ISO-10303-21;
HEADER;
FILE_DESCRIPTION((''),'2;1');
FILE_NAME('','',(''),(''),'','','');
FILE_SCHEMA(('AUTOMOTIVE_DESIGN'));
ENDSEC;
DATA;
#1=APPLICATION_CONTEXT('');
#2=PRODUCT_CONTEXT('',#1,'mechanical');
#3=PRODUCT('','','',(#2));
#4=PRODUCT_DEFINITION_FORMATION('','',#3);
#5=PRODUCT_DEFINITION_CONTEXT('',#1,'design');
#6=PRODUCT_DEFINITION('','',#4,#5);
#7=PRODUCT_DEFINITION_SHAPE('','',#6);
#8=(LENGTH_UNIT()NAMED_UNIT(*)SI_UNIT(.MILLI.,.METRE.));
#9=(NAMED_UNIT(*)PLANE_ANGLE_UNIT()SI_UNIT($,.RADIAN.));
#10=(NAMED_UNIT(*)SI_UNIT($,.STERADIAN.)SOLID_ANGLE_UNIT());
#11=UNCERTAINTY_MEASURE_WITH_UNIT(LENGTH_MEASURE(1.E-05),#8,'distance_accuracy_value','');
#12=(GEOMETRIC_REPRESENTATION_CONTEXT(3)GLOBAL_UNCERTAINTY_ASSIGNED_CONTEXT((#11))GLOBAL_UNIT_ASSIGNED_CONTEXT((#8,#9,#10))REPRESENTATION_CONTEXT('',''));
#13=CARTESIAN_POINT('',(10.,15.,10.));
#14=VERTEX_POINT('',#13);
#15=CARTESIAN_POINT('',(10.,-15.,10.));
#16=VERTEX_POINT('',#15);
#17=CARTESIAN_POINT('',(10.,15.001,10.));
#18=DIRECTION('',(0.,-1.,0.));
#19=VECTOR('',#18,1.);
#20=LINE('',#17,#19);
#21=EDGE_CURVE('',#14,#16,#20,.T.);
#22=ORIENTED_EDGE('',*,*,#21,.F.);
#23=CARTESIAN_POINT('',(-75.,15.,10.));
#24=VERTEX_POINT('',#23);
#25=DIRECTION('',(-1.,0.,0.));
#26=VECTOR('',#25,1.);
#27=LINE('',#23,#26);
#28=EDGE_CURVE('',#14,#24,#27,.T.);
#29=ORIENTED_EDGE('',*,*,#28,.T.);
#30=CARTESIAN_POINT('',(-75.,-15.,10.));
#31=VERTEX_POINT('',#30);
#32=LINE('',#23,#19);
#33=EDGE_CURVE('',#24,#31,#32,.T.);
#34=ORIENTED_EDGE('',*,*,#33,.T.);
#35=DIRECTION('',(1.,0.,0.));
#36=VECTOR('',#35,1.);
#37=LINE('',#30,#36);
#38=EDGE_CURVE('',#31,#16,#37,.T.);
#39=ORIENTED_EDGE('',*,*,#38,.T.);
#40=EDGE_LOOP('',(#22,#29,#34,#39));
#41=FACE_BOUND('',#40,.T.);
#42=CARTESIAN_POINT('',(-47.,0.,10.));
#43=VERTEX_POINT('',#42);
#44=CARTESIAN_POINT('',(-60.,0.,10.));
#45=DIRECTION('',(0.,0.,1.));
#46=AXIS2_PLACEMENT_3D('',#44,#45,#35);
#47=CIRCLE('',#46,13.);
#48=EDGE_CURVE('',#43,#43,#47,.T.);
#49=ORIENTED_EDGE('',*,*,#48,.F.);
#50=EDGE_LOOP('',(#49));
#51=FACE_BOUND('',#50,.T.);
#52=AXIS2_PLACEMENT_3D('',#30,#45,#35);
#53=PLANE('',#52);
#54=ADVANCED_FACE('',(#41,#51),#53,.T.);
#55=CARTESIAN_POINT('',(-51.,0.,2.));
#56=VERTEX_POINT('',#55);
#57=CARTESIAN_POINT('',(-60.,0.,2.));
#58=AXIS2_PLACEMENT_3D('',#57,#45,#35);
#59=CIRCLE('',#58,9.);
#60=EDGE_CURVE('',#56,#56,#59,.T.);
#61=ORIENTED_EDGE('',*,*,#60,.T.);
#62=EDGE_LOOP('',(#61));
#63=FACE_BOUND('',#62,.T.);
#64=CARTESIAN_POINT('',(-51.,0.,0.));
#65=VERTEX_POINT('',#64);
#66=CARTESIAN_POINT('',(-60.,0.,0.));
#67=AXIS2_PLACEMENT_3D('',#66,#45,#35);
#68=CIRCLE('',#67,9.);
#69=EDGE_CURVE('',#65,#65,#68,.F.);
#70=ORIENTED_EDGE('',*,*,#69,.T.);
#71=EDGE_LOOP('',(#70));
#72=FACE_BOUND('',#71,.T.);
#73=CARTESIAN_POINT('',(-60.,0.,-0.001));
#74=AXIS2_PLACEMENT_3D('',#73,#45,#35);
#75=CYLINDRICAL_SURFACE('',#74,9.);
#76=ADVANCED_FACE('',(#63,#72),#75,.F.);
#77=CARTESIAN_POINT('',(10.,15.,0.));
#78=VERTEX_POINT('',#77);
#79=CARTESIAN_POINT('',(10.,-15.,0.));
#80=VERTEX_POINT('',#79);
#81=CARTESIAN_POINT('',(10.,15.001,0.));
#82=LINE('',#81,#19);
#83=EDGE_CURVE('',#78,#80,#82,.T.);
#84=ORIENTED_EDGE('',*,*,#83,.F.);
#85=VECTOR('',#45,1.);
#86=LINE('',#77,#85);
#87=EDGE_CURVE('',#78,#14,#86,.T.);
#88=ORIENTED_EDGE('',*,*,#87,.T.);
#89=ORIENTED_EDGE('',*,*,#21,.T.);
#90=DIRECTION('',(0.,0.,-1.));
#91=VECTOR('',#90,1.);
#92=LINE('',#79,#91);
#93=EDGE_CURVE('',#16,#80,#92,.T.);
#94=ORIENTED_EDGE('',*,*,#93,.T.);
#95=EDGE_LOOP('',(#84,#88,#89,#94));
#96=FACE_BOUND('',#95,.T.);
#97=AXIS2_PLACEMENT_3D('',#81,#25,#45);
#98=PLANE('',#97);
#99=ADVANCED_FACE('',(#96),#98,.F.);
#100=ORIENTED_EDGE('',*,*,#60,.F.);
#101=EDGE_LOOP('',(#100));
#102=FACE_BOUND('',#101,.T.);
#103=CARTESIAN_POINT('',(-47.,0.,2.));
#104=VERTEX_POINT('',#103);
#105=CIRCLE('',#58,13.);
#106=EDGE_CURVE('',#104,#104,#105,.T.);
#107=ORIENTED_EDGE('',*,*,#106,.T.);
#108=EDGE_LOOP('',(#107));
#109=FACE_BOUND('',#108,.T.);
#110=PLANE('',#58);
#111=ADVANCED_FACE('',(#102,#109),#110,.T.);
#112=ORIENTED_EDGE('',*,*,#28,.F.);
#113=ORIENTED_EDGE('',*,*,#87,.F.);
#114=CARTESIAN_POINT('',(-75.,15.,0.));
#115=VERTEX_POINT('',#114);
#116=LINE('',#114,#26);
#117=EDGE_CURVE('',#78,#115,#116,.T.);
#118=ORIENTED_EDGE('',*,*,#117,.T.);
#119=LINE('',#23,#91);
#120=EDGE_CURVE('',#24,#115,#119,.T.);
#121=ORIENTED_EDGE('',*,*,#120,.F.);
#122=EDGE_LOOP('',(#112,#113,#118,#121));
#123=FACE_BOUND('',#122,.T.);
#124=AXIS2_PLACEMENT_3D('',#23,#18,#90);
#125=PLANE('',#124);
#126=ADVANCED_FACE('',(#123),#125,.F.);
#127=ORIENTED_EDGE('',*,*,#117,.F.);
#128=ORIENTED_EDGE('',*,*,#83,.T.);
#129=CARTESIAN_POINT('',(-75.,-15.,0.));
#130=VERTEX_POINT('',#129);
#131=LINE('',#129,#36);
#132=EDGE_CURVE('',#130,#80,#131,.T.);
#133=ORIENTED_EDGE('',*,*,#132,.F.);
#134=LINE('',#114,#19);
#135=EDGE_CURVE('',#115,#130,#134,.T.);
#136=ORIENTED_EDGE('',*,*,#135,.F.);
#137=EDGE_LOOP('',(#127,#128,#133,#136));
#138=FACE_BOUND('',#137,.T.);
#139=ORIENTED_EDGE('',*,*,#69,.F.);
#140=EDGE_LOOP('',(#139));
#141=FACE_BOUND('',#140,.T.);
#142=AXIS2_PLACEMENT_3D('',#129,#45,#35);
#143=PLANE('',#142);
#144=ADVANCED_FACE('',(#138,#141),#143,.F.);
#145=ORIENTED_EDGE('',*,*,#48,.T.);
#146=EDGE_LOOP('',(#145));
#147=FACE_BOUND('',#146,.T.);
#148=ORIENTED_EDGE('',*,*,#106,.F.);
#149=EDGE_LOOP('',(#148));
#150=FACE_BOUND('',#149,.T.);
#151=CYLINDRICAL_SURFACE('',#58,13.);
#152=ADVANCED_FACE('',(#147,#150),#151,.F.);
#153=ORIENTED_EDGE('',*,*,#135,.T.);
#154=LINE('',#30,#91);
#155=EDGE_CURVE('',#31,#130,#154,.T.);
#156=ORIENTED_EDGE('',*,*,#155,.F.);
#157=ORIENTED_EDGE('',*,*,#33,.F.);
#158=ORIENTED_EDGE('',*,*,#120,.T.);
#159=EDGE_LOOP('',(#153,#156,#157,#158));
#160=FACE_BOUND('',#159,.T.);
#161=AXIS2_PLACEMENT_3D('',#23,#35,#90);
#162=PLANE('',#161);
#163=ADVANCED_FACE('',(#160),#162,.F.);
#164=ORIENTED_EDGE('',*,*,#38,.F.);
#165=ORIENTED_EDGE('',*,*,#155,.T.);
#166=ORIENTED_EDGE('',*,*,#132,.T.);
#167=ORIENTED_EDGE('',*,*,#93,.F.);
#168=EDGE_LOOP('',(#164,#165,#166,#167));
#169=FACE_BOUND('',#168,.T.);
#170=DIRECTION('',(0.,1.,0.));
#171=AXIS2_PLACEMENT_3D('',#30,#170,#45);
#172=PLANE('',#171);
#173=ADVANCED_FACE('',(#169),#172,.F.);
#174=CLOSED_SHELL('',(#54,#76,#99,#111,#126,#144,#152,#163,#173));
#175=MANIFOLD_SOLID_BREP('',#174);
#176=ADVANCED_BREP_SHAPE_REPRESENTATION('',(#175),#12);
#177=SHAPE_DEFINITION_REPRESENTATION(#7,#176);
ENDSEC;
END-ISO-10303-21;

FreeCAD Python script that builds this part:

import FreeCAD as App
import Part
import Sketcher


def add_polygon(sketch, points):
    """Adds a closed chain of lines whose ends are joined by coincident constraints."""
    first, n = sketch.GeometryCount, len(points)
    for a, b in zip(points, points[1:] + points[:1]):
        sketch.addGeometry(Part.LineSegment(App.Vector(*a, 0), App.Vector(*b, 0)), False)
    for i in range(n):
        sketch.addConstraint(Sketcher.Constraint("Coincident", first + i, 2, first + (i + 1) % n, 1))

doc = App.newDocument("Part")
body = doc.addObject("PartDesign::Body", "Body")

# Sketch on XY plane
sketch1 = body.newObject("Sketcher::SketchObject", "Sketch")
sketch1.AttachmentSupport = (doc.getObject("XY_Plane"), [""])
sketch1.MapMode = "FlatFace"
add_polygon(sketch1, [(-75, 15), (-75, -15), (75, -15), (75, 15)])  # lines 0-3
sketch1.addConstraint([
    Sketcher.Constraint("Vertical", 0),
    Sketcher.Constraint("Horizontal", 1),
    Sketcher.Constraint("Vertical", 2),
    Sketcher.Constraint("Horizontal", 3),
    Sketcher.Constraint("Symmetric", 0, 2, 2, 2, -1, 1),
    Sketcher.Constraint("DistanceX", 1, 1, 1, 2, 150.0),
    Sketcher.Constraint("DistanceY", 0, 2, 0, 1, 30.0),
])
pad1 = body.newObject("PartDesign::Pad", "Pad")
pad1.Profile = sketch1
pad1.Length = 10

# Sketch on XY plane
sketch2 = body.newObject("Sketcher::SketchObject", "Sketch001")
sketch2.AttachmentSupport = (doc.getObject("XY_Plane"), [""])
sketch2.MapMode = "FlatFace"
sketch2.AttachmentOffset = App.Placement(App.Vector(0, 0, 10), App.Rotation())
sketch2.addGeometry(Part.Circle(App.Vector(-60, 0, 0), App.Vector(0, 0, 1), 13), False)
sketch2.addConstraint([
    Sketcher.Constraint("PointOnObject", 0, 3, -1),
    Sketcher.Constraint("Diameter", 0, 26.0),
    Sketcher.Constraint("DistanceX", 0, 3, -1, 1, 60.0),
])
pocket1 = body.newObject("PartDesign::Pocket", "Pocket")
pocket1.Profile = sketch2
pocket1.Length = 8

# Sketch on XY plane
sketch3 = body.newObject("Sketcher::SketchObject", "Sketch002")
sketch3.AttachmentSupport = (doc.getObject("XY_Plane"), [""])
sketch3.MapMode = "FlatFace"
sketch3.AttachmentOffset = App.Placement(App.Vector(0, 0, 2), App.Rotation())
sketch3.addGeometry(Part.Circle(App.Vector(-60, 0, 0), App.Vector(0, 0, 1), 9), False)
sketch3.addConstraint([
    Sketcher.Constraint("PointOnObject", 0, 3, -1),
    Sketcher.Constraint("Diameter", 0, 18.0),
    Sketcher.Constraint("DistanceX", 0, 3, -1, 1, 60.0),
])
pocket2 = body.newObject("PartDesign::Pocket", "Pocket001")
pocket2.Profile = sketch3
pocket2.Type = "UpToFirst"

# Sketch on XZ plane
sketch4 = body.newObject("Sketcher::SketchObject", "Sketch003")
sketch4.AttachmentSupport = (doc.getObject("XZ_Plane"), [""])
sketch4.MapMode = "FlatFace"
sketch4.AttachmentOffset = App.Placement(App.Vector(0, 0, 15), App.Rotation())
add_polygon(sketch4, [(10, 10), (10, 0), (75, 0), (75, 10)])  # lines 0-3
sketch4.addConstraint([
    Sketcher.Constraint("Vertical", 0),
    Sketcher.Constraint("Horizontal", 1),
    Sketcher.Constraint("Vertical", 2),
    Sketcher.Constraint("Horizontal", 3),
    Sketcher.Constraint("PointOnObject", 0, 2, -1),
    Sketcher.Constraint("DistanceX", 1, 1, 1, 2, 65.0),
    Sketcher.Constraint("DistanceY", 0, 2, 0, 1, 10.0),
    Sketcher.Constraint("DistanceX", -1, 1, 0, 2, 10.0),
])
pocket3 = body.newObject("PartDesign::Pocket", "Pocket002")
pocket3.Profile = sketch4
pocket3.Type = "UpToFirst"

doc.recompute()
